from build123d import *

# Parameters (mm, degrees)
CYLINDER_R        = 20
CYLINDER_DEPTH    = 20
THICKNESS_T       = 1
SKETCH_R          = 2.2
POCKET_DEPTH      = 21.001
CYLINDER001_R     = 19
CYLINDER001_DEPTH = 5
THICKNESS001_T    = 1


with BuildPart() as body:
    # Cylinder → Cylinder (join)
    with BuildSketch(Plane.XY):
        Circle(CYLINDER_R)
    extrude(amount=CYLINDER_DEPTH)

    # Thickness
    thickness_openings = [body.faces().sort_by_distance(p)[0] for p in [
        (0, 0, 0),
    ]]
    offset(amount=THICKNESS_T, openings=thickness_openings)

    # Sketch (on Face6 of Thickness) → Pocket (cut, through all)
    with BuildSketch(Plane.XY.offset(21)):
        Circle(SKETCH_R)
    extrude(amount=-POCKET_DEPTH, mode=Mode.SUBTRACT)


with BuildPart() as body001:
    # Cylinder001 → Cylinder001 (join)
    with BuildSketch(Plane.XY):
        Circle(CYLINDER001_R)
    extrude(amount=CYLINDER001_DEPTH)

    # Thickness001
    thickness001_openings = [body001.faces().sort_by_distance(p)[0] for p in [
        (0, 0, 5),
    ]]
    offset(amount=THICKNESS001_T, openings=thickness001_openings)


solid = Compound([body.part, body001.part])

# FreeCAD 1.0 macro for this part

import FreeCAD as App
import Part
import Sketcher

V = App.Vector
Q = App.Units.Quantity


def faces_at(feature, points):
    """Names of the faces that lie closest to the given points."""
    faces = feature.Shape.Faces
    near = lambda p: min(range(len(faces)), key=lambda i: faces[i].distToShape(Part.Vertex(*p))[0])
    return sorted({f"Face{near(p) + 1}" for p in points})

doc = App.newDocument("Part")
body = doc.addObject("PartDesign::Body", "Body")

sketch1 = body.newObject("Sketcher::SketchObject", "Sketch")
sketch1.AttachmentSupport = (doc.getObject("XY_Plane"), [""])
sketch1.MapMode = "FlatFace"
sketch1.addGeometry(Part.Circle(V(0, 0, 0), V(0, 0, 1), 20), False)
sketch1.addConstraint([
    Sketcher.Constraint("Coincident", 0, 3, -1, 1),
    Sketcher.Constraint("Diameter", 0, Q("40 mm")),
])
pad1 = body.newObject("PartDesign::Pad", "Pad")
pad1.Profile = sketch1
pad1.Length = 20
doc.recompute()

thickness = body.newObject("PartDesign::Thickness", "Thickness")
thickness.Base = (pad1, faces_at(pad1, [(0, 0, 0)]))
thickness.Value = 1
thickness.Reversed = False
thickness.Join = "Arc"

sketch2 = body.newObject("Sketcher::SketchObject", "Sketch001")
sketch2.AttachmentSupport = (doc.getObject("XY_Plane"), [""])
sketch2.MapMode = "FlatFace"
sketch2.AttachmentOffset = App.Placement(V(0, 0, 21), App.Rotation())
sketch2.addGeometry(Part.Circle(V(0, 0, 0), V(0, 0, 1), 2.2), False)
sketch2.addConstraint([
    Sketcher.Constraint("Coincident", 0, 3, -1, 1),
    Sketcher.Constraint("Diameter", 0, Q("4.4 mm")),
])
pocket1 = body.newObject("PartDesign::Pocket", "Pocket")
pocket1.Profile = sketch2
pocket1.Type = "ThroughAll"
body2 = doc.addObject("PartDesign::Body", "Body001")

sketch3 = body2.newObject("Sketcher::SketchObject", "Sketch002")
sketch3.AttachmentSupport = (doc.getObject("XY_Plane001"), [""])
sketch3.MapMode = "FlatFace"
sketch3.addGeometry(Part.Circle(V(0, 0, 0), V(0, 0, 1), 19), False)
sketch3.addConstraint([
    Sketcher.Constraint("Coincident", 0, 3, -1, 1),
    Sketcher.Constraint("Diameter", 0, Q("38 mm")),
])
pad2 = body2.newObject("PartDesign::Pad", "Pad001")
pad2.Profile = sketch3
pad2.Length = 5
doc.recompute()

thickness2 = body2.newObject("PartDesign::Thickness", "Thickness001")
thickness2.Base = (pad2, faces_at(pad2, [(0, 0, 5)]))
thickness2.Value = 1
thickness2.Reversed = False
thickness2.Join = "Arc"

doc.recompute()
